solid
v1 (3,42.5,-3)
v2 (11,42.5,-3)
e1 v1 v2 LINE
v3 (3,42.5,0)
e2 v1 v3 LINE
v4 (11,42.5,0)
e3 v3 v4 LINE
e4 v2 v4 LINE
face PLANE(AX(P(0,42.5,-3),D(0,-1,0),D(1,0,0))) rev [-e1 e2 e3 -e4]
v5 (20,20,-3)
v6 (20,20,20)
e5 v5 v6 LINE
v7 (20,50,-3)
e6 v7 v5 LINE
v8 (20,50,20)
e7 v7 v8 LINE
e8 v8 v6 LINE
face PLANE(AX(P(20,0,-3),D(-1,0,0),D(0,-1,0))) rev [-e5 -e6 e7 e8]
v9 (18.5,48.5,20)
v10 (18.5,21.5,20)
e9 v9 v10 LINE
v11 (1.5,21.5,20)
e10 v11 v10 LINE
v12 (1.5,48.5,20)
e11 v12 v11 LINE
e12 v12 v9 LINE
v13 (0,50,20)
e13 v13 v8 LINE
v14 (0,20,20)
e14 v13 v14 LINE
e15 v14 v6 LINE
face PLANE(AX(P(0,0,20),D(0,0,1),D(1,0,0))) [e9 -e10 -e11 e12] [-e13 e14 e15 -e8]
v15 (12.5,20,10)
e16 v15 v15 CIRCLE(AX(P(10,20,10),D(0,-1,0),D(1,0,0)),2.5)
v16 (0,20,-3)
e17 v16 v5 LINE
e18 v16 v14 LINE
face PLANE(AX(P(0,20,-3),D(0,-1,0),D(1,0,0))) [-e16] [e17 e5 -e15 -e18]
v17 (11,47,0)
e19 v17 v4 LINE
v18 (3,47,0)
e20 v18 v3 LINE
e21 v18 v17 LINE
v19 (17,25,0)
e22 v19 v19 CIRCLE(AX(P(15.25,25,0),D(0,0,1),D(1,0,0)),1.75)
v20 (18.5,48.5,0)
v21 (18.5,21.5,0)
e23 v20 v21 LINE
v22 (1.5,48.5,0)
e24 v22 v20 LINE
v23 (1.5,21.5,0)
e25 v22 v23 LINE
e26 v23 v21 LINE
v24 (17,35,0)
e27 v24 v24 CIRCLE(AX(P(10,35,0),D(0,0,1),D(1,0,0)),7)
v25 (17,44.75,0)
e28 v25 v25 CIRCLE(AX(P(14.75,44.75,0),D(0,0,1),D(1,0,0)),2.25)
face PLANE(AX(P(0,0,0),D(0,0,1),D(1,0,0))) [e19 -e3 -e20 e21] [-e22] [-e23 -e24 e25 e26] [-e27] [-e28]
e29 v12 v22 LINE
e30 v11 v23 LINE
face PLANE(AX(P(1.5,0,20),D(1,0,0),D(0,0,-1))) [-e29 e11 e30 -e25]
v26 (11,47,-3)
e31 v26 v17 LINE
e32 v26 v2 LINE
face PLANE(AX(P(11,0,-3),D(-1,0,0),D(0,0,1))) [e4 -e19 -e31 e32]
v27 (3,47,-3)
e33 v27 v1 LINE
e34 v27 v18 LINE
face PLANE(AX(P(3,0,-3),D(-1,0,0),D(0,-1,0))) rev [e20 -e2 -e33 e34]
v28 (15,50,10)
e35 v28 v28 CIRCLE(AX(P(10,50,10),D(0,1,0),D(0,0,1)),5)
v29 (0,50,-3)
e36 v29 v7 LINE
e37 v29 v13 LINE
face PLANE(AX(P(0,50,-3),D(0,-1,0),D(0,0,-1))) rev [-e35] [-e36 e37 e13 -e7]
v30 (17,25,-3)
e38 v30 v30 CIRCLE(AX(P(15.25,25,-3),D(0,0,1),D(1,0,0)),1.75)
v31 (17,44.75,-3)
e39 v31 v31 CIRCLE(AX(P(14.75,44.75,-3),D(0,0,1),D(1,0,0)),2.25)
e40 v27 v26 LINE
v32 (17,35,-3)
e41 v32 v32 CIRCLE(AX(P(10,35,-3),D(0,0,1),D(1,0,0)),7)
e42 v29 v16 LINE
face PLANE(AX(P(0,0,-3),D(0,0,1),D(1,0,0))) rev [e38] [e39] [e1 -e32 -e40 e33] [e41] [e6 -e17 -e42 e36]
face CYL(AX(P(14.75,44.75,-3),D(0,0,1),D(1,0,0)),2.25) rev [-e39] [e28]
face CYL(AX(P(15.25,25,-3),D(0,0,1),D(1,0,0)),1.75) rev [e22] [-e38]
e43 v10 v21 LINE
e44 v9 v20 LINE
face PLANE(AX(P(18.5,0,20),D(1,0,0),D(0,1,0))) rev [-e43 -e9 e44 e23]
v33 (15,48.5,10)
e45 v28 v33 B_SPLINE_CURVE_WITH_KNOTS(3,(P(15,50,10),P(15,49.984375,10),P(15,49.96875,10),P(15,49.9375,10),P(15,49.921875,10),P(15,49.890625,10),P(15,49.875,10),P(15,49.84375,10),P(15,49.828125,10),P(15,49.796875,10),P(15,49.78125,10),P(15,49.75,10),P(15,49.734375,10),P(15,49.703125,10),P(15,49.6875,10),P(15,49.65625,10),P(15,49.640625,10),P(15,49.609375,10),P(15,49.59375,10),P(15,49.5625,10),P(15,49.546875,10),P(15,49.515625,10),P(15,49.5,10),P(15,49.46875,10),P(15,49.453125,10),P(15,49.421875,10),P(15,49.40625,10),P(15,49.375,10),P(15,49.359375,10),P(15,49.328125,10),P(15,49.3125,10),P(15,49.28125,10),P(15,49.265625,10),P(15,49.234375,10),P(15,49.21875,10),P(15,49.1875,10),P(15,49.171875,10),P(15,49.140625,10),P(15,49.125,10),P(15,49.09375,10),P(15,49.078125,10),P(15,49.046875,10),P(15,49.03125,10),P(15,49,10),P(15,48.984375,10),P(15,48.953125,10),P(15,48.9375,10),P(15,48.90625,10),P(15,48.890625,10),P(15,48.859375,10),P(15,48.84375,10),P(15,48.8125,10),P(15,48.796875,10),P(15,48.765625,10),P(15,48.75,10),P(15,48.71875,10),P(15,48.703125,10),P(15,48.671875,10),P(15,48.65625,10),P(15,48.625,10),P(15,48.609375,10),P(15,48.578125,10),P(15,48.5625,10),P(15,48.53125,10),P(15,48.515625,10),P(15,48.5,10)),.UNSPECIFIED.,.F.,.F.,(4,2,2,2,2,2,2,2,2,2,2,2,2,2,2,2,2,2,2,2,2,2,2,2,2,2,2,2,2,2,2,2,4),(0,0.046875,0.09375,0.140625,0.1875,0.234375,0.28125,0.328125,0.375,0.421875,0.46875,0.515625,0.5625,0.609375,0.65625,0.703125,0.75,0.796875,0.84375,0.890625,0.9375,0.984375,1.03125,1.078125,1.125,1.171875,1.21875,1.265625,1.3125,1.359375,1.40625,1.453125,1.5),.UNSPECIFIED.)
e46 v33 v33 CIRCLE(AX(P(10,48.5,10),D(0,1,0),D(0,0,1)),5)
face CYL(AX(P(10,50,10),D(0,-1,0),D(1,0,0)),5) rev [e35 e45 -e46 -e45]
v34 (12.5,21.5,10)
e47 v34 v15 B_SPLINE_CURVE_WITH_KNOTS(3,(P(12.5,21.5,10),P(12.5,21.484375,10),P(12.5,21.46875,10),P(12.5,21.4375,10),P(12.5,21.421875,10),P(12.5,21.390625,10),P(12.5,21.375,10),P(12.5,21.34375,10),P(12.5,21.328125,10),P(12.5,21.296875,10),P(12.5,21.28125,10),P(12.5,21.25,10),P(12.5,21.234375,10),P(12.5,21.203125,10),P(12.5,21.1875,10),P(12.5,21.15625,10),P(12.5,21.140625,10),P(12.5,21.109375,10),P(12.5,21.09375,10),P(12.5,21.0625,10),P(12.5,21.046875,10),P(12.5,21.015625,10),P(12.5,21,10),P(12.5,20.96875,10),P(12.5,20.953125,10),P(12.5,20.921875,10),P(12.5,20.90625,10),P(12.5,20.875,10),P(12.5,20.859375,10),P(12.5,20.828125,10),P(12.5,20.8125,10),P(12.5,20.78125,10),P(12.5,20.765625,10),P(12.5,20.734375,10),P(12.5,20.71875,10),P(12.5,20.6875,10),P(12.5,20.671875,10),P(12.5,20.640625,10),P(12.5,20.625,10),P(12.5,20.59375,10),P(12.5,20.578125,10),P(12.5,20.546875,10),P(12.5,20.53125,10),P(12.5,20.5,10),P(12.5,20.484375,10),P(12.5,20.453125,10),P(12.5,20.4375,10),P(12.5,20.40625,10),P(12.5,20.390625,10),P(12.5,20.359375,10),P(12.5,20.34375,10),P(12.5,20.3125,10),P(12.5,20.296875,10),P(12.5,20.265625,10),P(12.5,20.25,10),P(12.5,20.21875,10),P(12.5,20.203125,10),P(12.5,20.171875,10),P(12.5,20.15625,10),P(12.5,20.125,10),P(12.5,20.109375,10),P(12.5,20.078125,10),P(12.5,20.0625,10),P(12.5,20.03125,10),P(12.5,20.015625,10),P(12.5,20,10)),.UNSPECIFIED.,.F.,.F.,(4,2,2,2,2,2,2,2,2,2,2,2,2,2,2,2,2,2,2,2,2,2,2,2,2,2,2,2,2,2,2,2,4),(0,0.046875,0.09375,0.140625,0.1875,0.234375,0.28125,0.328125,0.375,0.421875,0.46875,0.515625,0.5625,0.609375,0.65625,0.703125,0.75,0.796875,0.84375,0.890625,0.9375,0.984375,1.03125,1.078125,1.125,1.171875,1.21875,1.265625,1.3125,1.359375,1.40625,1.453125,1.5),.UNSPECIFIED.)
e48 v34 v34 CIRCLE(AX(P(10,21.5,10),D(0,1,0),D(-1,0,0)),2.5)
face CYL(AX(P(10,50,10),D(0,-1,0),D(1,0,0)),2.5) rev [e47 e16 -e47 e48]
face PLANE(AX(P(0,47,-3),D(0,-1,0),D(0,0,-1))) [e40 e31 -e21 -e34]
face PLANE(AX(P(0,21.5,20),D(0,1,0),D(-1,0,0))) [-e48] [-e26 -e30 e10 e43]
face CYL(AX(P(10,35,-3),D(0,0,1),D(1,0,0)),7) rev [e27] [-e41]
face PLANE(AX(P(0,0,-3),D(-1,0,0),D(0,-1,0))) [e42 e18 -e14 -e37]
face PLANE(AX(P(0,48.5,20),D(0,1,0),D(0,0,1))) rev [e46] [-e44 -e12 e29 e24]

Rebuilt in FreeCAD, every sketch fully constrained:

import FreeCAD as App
import Part
import Sketcher

doc = App.newDocument("Part")
body = doc.addObject("PartDesign::Body", "Body")

sketch1 = body.newObject("Sketcher::SketchObject", "Sketch")
sketch1.AttachmentSupport = (doc.getObject("XY_Plane"), [""])
sketch1.MapMode = "FlatFace"
sketch1.addGeometry([
    Part.LineSegment(App.Vector(0, 50, 0), App.Vector(0, 20, 0)),
    Part.LineSegment(App.Vector(0, 20, 0), App.Vector(20, 20, 0)),
    Part.LineSegment(App.Vector(20, 20, 0), App.Vector(20, 50, 0)),
    Part.LineSegment(App.Vector(20, 50, 0), App.Vector(0, 50, 0)),
    Part.Circle(App.Vector(15.2, 25, 0), App.Vector(0, 0, 1), 1.8),
    Part.Circle(App.Vector(10, 35, 0), App.Vector(0, 0, 1), 7),
    Part.LineSegment(App.Vector(11, 42.5, 0), App.Vector(3, 42.5, 0)),
    Part.LineSegment(App.Vector(3, 42.5, 0), App.Vector(3, 47, 0)),
    Part.LineSegment(App.Vector(3, 47, 0), App.Vector(11, 47, 0)),
    Part.LineSegment(App.Vector(11, 47, 0), App.Vector(11, 42.5, 0)),
    Part.Circle(App.Vector(14.8, 44.8, 0), App.Vector(0, 0, 1), 2.2),
], False)
sketch1.addConstraint([
    Sketcher.Constraint("Coincident", 0, 2, 1, 1),
    Sketcher.Constraint("Coincident", 1, 2, 2, 1),
    Sketcher.Constraint("Coincident", 2, 2, 3, 1),
    Sketcher.Constraint("Coincident", 3, 2, 0, 1),
    Sketcher.Constraint("Coincident", 6, 2, 7, 1),
    Sketcher.Constraint("Coincident", 7, 2, 8, 1),
    Sketcher.Constraint("Coincident", 8, 2, 9, 1),
    Sketcher.Constraint("Coincident", 9, 2, 6, 1),
    Sketcher.Constraint("Vertical", 0),
    Sketcher.Constraint("Horizontal", 1),
    Sketcher.Constraint("Vertical", 2),
    Sketcher.Constraint("Horizontal", 3),
    Sketcher.Constraint("Horizontal", 6),
    Sketcher.Constraint("Vertical", 7),
    Sketcher.Constraint("Horizontal", 8),
    Sketcher.Constraint("Vertical", 9),
    Sketcher.Constraint("PointOnObject", 0, 2, -2),
    Sketcher.Constraint("Diameter", 5, 14.0),
    Sketcher.Constraint("Diameter", 4, 3.5),
    Sketcher.Constraint("Diameter", 10, 4.5),
    Sketcher.Constraint("DistanceX", 1, 1, 1, 2, 20.0),
    Sketcher.Constraint("DistanceX", 6, 2, 6, 1, 8.0),
    Sketcher.Constraint("DistanceY", 0, 2, 0, 1, 30.0),
    Sketcher.Constraint("DistanceY", 7, 1, 7, 2, 4.5),
    Sketcher.Constraint("DistanceY", -1, 1, 4, 3, 25.0),
    Sketcher.Constraint("DistanceX", -1, 1, 5, 3, 10.0),
    Sketcher.Constraint("DistanceY", -1, 1, 5, 3, 35.0),
    Sketcher.Constraint("DistanceY", -1, 1, 0, 2, 20.0),
    Sketcher.Constraint("DistanceX", -1, 1, 6, 2, 3.0),
    Sketcher.Constraint("DistanceY", -1, 1, 7, 2, 47.0),
    Sketcher.Constraint("DistanceX", 10, 3, 4, 3, 0.5),
    Sketcher.Constraint("DistanceX", -1, 1, 4, 3, 15.25),
    Sketcher.Constraint("DistanceY", -1, 1, 10, 3, 44.75),
])
pad1 = body.newObject("PartDesign::Pad", "Pad")
pad1.Profile = sketch1
pad1.Length = 3
pad1.Reversed = True

sketch2 = body.newObject("Sketcher::SketchObject", "Sketch001")
sketch2.AttachmentSupport = (doc.getObject("XY_Plane"), [""])
sketch2.MapMode = "FlatFace"
sketch2.addGeometry([
    Part.LineSegment(App.Vector(0, 50, 0), App.Vector(0, 20, 0)),
    Part.LineSegment(App.Vector(0, 20, 0), App.Vector(20, 20, 0)),
    Part.LineSegment(App.Vector(20, 20, 0), App.Vector(20, 50, 0)),
    Part.LineSegment(App.Vector(20, 50, 0), App.Vector(0, 50, 0)),
    Part.LineSegment(App.Vector(18, 22, 0), App.Vector(2, 22, 0)),
    Part.LineSegment(App.Vector(2, 22, 0), App.Vector(2, 48, 0)),
    Part.LineSegment(App.Vector(2, 48, 0), App.Vector(18, 48, 0)),
    Part.LineSegment(App.Vector(18, 48, 0), App.Vector(18, 22, 0)),
], False)
sketch2.addConstraint([
    Sketcher.Constraint("Coincident", 0, 2, 1, 1),
    Sketcher.Constraint("Coincident", 1, 2, 2, 1),
    Sketcher.Constraint("Coincident", 2, 2, 3, 1),
    Sketcher.Constraint("Coincident", 3, 2, 0, 1),
    Sketcher.Constraint("Coincident", 4, 2, 5, 1),
    Sketcher.Constraint("Coincident", 5, 2, 6, 1),
    Sketcher.Constraint("Coincident", 6, 2, 7, 1),
    Sketcher.Constraint("Coincident", 7, 2, 4, 1),
    Sketcher.Constraint("Vertical", 0),
    Sketcher.Constraint("Horizontal", 1),
    Sketcher.Constraint("Vertical", 2),
    Sketcher.Constraint("Horizontal", 3),
    Sketcher.Constraint("Horizontal", 4),
    Sketcher.Constraint("Vertical", 5),
    Sketcher.Constraint("Horizontal", 6),
    Sketcher.Constraint("Vertical", 7),
    Sketcher.Constraint("PointOnObject", 0, 2, -2),
    Sketcher.Constraint("DistanceX", 1, 1, 1, 2, 20.0),
    Sketcher.Constraint("DistanceX", 4, 2, 4, 1, 17.0),
    Sketcher.Constraint("DistanceY", 0, 2, 0, 1, 30.0),
    Sketcher.Constraint("DistanceY", 5, 1, 5, 2, 27.0),
    Sketcher.Constraint("DistanceY", -1, 1, 0, 2, 20.0),
    Sketcher.Constraint("DistanceX", -1, 1, 4, 2, 1.5),
    Sketcher.Constraint("DistanceY", -1, 1, 4, 2, 21.5),
])
pad2 = body.newObject("PartDesign::Pad", "Pad001")
pad2.Profile = sketch2
pad2.Length = 20

sketch3 = body.newObject("Sketcher::SketchObject", "Sketch002")
sketch3.AttachmentSupport = (doc.getObject("XZ_Plane"), [""])
sketch3.MapMode = "FlatFace"
sketch3.AttachmentOffset = App.Placement(App.Vector(0, 0, -20), App.Rotation())
sketch3.addGeometry(Part.Circle(App.Vector(10, 10, 0), App.Vector(0, 0, 1), 2.5), False)
sketch3.addConstraint([
    Sketcher.Constraint("Diameter", 0, 5.0),
    Sketcher.Constraint("DistanceX", -1, 1, 0, 3, 10.0),
    Sketcher.Constraint("DistanceY", -1, 1, 0, 3, 10.0),
])
pocket1 = body.newObject("PartDesign::Pocket", "Pocket")
pocket1.Profile = sketch3
pocket1.Type = "ThroughAll"

sketch4 = body.newObject("Sketcher::SketchObject", "Sketch003")
sketch4.AttachmentSupport = (doc.getObject("XZ_Plane"), [""])
sketch4.MapMode = "FlatFace"
sketch4.AttachmentOffset = App.Placement(App.Vector(0, 0, -48.5), App.Rotation())
sketch4.addGeometry([
    Part.Circle(App.Vector(10, 10, 0), App.Vector(0, 0, 1), 5),
    Part.Circle(App.Vector(10, 10, 0), App.Vector(0, 0, 1), 2.5),
], False)
sketch4.addConstraint([
    Sketcher.Constraint("Coincident", 1, 3, 0, 3),
    Sketcher.Constraint("Diameter", 0, 10.0),
    Sketcher.Constraint("Diameter", 1, 5.0),
    Sketcher.Constraint("DistanceX", -1, 1, 0, 3, 10.0),
    Sketcher.Constraint("DistanceY", -1, 1, 0, 3, 10.0),
])
pocket2 = body.newObject("PartDesign::Pocket", "Pocket001")
pocket2.Profile = sketch4
pocket2.Type = "ThroughAll"

doc.recompute()
